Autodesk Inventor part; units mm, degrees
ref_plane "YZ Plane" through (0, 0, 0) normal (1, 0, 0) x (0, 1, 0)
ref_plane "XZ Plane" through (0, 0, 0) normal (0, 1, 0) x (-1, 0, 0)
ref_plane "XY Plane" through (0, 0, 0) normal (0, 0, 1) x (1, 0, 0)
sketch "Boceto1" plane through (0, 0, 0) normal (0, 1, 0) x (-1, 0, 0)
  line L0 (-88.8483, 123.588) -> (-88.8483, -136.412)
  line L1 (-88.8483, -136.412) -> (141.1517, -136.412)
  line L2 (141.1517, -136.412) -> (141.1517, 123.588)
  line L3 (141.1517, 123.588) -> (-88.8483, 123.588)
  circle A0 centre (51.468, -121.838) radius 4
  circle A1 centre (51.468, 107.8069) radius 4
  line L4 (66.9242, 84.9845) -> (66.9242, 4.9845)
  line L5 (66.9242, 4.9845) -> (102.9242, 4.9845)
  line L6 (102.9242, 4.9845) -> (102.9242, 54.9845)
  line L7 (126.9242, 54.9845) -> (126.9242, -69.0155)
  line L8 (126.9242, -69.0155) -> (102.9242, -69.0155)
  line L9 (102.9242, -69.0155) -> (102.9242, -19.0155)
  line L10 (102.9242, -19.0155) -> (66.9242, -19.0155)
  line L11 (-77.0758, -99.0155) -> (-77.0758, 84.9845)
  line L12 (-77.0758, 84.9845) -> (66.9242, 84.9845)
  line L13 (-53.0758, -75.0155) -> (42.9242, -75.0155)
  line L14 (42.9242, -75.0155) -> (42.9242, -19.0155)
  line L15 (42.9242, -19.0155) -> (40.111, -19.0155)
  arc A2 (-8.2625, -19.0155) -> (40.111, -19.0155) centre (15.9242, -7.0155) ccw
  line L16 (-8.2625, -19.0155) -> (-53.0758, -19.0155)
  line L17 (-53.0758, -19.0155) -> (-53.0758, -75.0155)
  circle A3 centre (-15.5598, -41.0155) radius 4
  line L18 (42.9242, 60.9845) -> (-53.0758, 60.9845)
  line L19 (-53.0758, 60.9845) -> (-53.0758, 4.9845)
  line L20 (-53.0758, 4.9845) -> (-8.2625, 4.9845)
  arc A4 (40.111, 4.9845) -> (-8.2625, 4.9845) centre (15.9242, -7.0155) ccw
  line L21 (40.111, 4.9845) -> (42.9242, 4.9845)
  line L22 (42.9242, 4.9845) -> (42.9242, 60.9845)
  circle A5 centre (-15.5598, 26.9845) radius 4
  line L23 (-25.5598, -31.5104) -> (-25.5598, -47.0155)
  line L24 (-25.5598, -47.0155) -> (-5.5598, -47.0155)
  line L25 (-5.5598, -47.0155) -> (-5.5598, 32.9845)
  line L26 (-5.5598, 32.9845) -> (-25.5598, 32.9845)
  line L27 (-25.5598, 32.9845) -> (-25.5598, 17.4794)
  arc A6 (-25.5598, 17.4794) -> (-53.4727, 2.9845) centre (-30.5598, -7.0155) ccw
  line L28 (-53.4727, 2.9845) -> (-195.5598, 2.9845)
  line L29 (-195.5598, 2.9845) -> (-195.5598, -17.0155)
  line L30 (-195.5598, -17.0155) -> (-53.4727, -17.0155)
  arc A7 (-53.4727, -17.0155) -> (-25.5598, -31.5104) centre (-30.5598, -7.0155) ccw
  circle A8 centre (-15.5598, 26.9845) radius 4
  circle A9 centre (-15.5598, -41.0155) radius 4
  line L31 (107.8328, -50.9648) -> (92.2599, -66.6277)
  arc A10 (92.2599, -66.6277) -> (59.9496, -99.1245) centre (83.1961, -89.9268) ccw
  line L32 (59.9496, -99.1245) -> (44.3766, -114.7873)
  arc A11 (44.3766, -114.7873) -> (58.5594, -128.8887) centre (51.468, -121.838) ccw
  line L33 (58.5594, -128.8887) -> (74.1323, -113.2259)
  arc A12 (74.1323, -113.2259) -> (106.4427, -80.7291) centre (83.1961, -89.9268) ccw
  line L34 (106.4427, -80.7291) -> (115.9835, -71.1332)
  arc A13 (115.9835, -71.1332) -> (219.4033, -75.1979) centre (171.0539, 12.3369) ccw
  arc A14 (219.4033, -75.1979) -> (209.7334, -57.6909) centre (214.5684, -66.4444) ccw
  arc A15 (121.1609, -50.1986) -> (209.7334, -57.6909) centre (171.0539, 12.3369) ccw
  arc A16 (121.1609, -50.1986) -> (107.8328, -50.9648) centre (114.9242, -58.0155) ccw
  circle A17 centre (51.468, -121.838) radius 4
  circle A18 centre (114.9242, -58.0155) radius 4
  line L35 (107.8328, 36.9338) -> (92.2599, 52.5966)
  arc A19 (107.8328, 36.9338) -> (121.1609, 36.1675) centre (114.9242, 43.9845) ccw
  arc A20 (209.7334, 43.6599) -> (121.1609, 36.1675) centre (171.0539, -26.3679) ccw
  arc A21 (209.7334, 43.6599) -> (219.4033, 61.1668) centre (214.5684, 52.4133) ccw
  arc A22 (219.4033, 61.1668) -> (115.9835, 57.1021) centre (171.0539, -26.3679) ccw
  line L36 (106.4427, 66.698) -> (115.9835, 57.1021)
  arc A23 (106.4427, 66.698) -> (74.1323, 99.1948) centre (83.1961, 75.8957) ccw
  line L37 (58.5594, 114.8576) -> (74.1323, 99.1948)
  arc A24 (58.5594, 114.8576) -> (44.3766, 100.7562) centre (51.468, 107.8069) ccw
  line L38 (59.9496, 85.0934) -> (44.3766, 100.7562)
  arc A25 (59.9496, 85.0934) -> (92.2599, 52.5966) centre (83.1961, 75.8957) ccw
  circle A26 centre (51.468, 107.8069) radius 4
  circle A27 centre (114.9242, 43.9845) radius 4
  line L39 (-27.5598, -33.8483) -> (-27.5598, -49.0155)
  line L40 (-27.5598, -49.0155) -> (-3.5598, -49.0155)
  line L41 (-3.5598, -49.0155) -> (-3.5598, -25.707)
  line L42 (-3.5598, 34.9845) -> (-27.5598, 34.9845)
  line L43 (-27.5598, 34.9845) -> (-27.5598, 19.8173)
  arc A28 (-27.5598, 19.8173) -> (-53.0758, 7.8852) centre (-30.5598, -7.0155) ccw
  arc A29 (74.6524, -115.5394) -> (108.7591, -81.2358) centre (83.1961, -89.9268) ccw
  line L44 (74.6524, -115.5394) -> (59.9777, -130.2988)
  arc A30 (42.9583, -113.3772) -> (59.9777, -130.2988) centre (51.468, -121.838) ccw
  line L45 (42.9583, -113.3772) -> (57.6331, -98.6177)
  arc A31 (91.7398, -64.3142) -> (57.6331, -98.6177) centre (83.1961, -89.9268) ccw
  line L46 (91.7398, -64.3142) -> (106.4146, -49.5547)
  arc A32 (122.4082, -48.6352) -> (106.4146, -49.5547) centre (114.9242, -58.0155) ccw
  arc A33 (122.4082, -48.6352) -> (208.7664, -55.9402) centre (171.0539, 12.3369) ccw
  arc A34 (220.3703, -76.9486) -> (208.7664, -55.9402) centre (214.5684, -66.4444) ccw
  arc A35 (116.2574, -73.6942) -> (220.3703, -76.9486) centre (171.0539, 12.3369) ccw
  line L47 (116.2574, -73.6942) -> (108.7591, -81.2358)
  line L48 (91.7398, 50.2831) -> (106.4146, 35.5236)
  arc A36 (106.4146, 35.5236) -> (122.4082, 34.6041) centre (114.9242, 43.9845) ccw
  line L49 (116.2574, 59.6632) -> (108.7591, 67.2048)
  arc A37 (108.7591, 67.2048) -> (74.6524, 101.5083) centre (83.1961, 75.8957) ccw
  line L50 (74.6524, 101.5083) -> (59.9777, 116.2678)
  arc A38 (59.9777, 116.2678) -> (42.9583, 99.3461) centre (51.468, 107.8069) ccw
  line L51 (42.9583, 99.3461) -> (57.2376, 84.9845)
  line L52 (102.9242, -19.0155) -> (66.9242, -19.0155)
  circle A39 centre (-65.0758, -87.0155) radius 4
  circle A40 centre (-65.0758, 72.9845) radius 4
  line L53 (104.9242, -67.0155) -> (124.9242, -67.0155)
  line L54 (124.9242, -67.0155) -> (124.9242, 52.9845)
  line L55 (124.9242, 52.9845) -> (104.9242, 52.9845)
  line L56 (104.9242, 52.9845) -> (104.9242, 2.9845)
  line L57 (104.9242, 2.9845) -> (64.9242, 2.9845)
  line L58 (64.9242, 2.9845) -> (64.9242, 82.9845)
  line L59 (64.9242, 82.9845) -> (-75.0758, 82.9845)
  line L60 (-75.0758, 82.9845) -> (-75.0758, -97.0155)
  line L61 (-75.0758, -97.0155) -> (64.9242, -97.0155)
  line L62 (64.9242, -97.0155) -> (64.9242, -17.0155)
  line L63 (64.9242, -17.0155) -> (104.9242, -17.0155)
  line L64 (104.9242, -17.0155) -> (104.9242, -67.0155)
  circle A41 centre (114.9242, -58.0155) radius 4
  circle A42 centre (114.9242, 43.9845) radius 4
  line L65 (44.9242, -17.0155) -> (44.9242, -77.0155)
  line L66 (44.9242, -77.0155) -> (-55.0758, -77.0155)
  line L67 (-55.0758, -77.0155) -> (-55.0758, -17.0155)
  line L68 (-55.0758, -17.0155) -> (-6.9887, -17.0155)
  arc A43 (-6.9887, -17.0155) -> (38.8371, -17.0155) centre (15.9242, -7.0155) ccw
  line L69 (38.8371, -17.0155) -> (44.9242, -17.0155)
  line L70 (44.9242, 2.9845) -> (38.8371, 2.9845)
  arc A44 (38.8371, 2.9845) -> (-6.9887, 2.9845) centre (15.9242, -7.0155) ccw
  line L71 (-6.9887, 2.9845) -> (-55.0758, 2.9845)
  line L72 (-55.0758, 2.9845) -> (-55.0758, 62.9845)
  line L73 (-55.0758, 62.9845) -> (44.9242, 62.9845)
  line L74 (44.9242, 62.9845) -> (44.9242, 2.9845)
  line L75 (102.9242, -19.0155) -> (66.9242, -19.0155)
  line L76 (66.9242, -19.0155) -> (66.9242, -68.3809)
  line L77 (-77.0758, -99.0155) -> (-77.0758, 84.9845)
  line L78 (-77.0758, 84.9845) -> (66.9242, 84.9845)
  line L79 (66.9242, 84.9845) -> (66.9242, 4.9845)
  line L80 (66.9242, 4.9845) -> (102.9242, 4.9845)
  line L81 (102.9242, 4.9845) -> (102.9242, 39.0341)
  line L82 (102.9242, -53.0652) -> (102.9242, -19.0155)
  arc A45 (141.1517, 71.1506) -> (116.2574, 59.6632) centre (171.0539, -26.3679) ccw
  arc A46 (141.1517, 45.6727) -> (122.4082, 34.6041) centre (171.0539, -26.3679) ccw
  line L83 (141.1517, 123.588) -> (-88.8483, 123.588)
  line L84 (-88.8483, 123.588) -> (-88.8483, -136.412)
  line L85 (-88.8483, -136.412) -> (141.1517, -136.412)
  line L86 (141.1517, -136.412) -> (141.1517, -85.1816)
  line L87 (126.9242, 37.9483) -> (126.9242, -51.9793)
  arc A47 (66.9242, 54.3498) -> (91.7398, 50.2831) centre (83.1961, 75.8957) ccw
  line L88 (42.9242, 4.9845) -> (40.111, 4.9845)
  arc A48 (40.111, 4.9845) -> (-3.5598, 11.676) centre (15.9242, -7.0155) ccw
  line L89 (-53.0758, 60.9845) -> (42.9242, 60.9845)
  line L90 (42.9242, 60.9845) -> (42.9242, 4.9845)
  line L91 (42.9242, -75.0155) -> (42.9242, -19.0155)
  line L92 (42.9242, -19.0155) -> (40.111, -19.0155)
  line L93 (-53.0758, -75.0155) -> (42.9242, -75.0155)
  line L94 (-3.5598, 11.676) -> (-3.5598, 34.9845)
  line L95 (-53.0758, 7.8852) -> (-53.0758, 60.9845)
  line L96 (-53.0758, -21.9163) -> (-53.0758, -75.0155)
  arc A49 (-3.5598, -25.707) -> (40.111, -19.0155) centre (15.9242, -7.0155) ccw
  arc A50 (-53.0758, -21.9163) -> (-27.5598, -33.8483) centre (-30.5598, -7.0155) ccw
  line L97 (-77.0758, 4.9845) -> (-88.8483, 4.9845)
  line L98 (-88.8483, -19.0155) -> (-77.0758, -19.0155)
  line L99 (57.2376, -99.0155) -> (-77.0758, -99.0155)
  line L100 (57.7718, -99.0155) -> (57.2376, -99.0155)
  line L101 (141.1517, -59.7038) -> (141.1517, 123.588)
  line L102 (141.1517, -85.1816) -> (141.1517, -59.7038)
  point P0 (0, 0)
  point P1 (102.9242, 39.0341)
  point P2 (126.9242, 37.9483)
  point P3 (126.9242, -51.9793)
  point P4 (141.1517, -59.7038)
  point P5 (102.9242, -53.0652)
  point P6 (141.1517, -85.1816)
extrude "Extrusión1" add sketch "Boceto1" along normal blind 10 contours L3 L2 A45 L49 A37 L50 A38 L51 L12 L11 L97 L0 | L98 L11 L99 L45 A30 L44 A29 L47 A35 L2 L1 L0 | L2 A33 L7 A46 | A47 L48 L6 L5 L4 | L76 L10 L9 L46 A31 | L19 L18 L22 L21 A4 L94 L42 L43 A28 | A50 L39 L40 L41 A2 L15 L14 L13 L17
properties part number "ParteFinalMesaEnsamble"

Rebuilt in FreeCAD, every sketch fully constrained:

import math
import FreeCAD as App
import Part
import Sketcher

V = App.Vector
Q = App.Units.Quantity

doc = App.newDocument("Part")
body = doc.addObject("PartDesign::Body", "Body")
body.AllowCompound = True

# Sketch on XZ plane
sketch1 = doc.addObject("Sketcher::SketchObject", "Sketch")
body.addObject(sketch1)
sketch1.AttachmentSupport = (doc.XZ_Plane, [""])
sketch1.MapMode = "FlatFace"
sketch1.addGeometry(Part.LineSegment(V(-141.2, 123.6, 0), V(88.8, 123.6, 0)), False)
sketch1.addGeometry(Part.LineSegment(V(88.8, 123.6, 0), V(88.8, 5, 0)), False)
sketch1.addGeometry(Part.LineSegment(V(88.8, 5, 0), V(77.1, 5, 0)), False)
sketch1.addGeometry(Part.LineSegment(V(77.1, 5, 0), V(77.1, 85, 0)), False)
sketch1.addGeometry(Part.LineSegment(V(77.1, 85, 0), V(-57.2, 85, 0)), False)
sketch1.addGeometry(Part.LineSegment(V(-57.2, 85, 0), V(-43, 99.3, 0)), False)
sketch1.addGeometry(Part.ArcOfCircle(Part.Circle(V(-51.5, 107.8, 0), V(0, 0, 1), 12), math.radians(-45), math.radians(135)), False)
sketch1.addGeometry(Part.LineSegment(V(-60, 116.3, 0), V(-74.7, 101.5, 0)), False)
sketch1.addGeometry(Part.ArcOfCircle(Part.Circle(V(-83.2, 75.9, 0), V(0, 0, 1), 27), math.radians(72), math.radians(199)), False)
sketch1.addGeometry(Part.LineSegment(V(-108.8, 67.2, 0), V(-116.3, 59.7, 0)), False)
sketch1.addGeometry(Part.ArcOfCircle(Part.Circle(V(-171.1, -26.4, 0), V(0, 0, 1), 102), math.radians(57.51), math.radians(72.95)), False)
sketch1.addGeometry(Part.LineSegment(V(-141.2, 71.2, 0), V(-141.2, 123.6, 0)), False)
sketch1.addGeometry(Part.LineSegment(V(77.1, -19, 0), V(88.8, -19, 0)), False)
sketch1.addGeometry(Part.LineSegment(V(88.8, -19, 0), V(88.8, -136.4, 0)), False)
sketch1.addGeometry(Part.LineSegment(V(88.8, -136.4, 0), V(-141.2, -136.4, 0)), False)
sketch1.addGeometry(Part.LineSegment(V(-141.2, -136.4, 0), V(-141.2, -85.2, 0)), False)
sketch1.addGeometry(Part.ArcOfCircle(Part.Circle(V(-171.1, 12.3, 0), V(0, 0, 1), 102), math.radians(-72.95), math.radians(-57.51)), False)
sketch1.addGeometry(Part.LineSegment(V(-116.3, -73.7, 0), V(-108.8, -81.2, 0)), False)
sketch1.addGeometry(Part.ArcOfCircle(Part.Circle(V(-83.2, -89.9, 0), V(0, 0, 1), 27), math.radians(161), math.radians(288)), False)
sketch1.addGeometry(Part.LineSegment(V(-74.7, -115.5, 0), V(-60, -130.3, 0)), False)
sketch1.addGeometry(Part.ArcOfCircle(Part.Circle(V(-51.5, -121.8, 0), V(0, 0, 1), 12), math.radians(-135), math.radians(45)), False)
sketch1.addGeometry(Part.LineSegment(V(-43, -113.4, 0), V(-57.2, -99, 0)), False)
sketch1.addGeometry(Part.LineSegment(V(-57.2, -99, 0), V(77.1, -99, 0)), False)
sketch1.addGeometry(Part.LineSegment(V(77.1, -99, 0), V(77.1, -19, 0)), False)
sketch1.addGeometry(Part.LineSegment(V(-141.2, -59.7, 0), V(-141.2, 45.7, 0)), False)
sketch1.addGeometry(Part.ArcOfCircle(Part.Circle(V(-171.1, -26.4, 0), V(0, 0, 1), 78), math.radians(55.54), math.radians(67.46)), False)
sketch1.addGeometry(Part.LineSegment(V(-126.9, 37.9, 0), V(-126.9, -52, 0)), False)
sketch1.addGeometry(Part.ArcOfCircle(Part.Circle(V(-171.1, 12.3, 0), V(0, 0, 1), 78), math.radians(-67.46), math.radians(-55.54)), False)
sketch1.addGeometry(Part.ArcOfCircle(Part.Circle(V(-83.2, 75.9, 0), V(0, 0, 1), 27), math.radians(-108), math.radians(-53)), False)
sketch1.addGeometry(Part.LineSegment(V(-66.9, 54.3, 0), V(-66.9, 5, 0)), False)
sketch1.addGeometry(Part.LineSegment(V(-66.9, 5, 0), V(-102.9, 5, 0)), False)
sketch1.addGeometry(Part.LineSegment(V(-102.9, 5, 0), V(-102.9, 39, 0)), False)
sketch1.addGeometry(Part.LineSegment(V(-102.9, 39, 0), V(-91.7, 50.3, 0)), False)
sketch1.addGeometry(Part.LineSegment(V(-66.9, -19, 0), V(-66.9, -68.4, 0)), False)
sketch1.addGeometry(Part.ArcOfCircle(Part.Circle(V(-83.2, -89.9, 0), V(0, 0, 1), 27), math.radians(53), math.radians(108)), False)
sketch1.addGeometry(Part.LineSegment(V(-91.7, -64.3, 0), V(-102.9, -53.1, 0)), False)
sketch1.addGeometry(Part.LineSegment(V(-102.9, -53.1, 0), V(-102.9, -19, 0)), False)
sketch1.addGeometry(Part.LineSegment(V(-102.9, -19, 0), V(-66.9, -19, 0)), False)
sketch1.addGeometry(Part.LineSegment(V(53.1, 61, 0), V(53.1, 7.9, 0)), False)
sketch1.addGeometry(Part.ArcOfCircle(Part.Circle(V(30.6, -7, 0), V(0, 0, 1), 27), math.radians(33), math.radians(96)), False)
sketch1.addGeometry(Part.LineSegment(V(27.6, 19.8, 0), V(27.6, 35, 0)), False)
sketch1.addGeometry(Part.LineSegment(V(27.6, 35, 0), V(3.6, 35, 0)), False)
sketch1.addGeometry(Part.LineSegment(V(3.6, 35, 0), V(3.6, 11.7, 0)), False)
sketch1.addGeometry(Part.ArcOfCircle(Part.Circle(V(-15.9, -7, 0), V(0, 0, 1), 27), math.radians(44), math.radians(154)), False)
sketch1.addGeometry(Part.LineSegment(V(-40.1, 5, 0), V(-42.9, 5, 0)), False)
sketch1.addGeometry(Part.LineSegment(V(-42.9, 5, 0), V(-42.9, 61, 0)), False)
sketch1.addGeometry(Part.LineSegment(V(-42.9, 61, 0), V(53.1, 61, 0)), False)
sketch1.addGeometry(Part.ArcOfCircle(Part.Circle(V(30.6, -7, 0), V(0, 0, 1), 27), math.radians(-96), math.radians(-33)), False)
sketch1.addGeometry(Part.LineSegment(V(53.1, -21.9, 0), V(53.1, -75, 0)), False)
sketch1.addGeometry(Part.LineSegment(V(53.1, -75, 0), V(-42.9, -75, 0)), False)
sketch1.addGeometry(Part.LineSegment(V(-42.9, -75, 0), V(-42.9, -19, 0)), False)
sketch1.addGeometry(Part.LineSegment(V(-42.9, -19, 0), V(-40.1, -19, 0)), False)
sketch1.addGeometry(Part.ArcOfCircle(Part.Circle(V(-15.9, -7, 0), V(0, 0, 1), 27), math.radians(-154), math.radians(-44)), False)
sketch1.addGeometry(Part.LineSegment(V(3.6, -25.7, 0), V(3.6, -49, 0)), False)
sketch1.addGeometry(Part.LineSegment(V(3.6, -49, 0), V(27.6, -49, 0)), False)
sketch1.addGeometry(Part.LineSegment(V(27.6, -49, 0), V(27.6, -33.8, 0)), False)
sketch1.addConstraint(Sketcher.Constraint("Coincident", 0, 2, 1, 1))
sketch1.addConstraint(Sketcher.Constraint("Coincident", 1, 2, 2, 1))
sketch1.addConstraint(Sketcher.Constraint("Coincident", 2, 2, 3, 1))
sketch1.addConstraint(Sketcher.Constraint("Coincident", 3, 2, 4, 1))
sketch1.addConstraint(Sketcher.Constraint("Coincident", 4, 2, 5, 1))
sketch1.addConstraint(Sketcher.Constraint("Tangent", 5, 2, 6, 1))
sketch1.addConstraint(Sketcher.Constraint("Tangent", 6, 2, 7, 1))
sketch1.addConstraint(Sketcher.Constraint("Coincident", 7, 2, 8, 1))
sketch1.addConstraint(Sketcher.Constraint("Coincident", 8, 2, 9, 1))
sketch1.addConstraint(Sketcher.Constraint("Coincident", 9, 2, 10, 1))
sketch1.addConstraint(Sketcher.Constraint("Coincident", 10, 2, 11, 1))
sketch1.addConstraint(Sketcher.Constraint("Coincident", 11, 2, 0, 1))
sketch1.addConstraint(Sketcher.Constraint("Coincident", 12, 2, 13, 1))
sketch1.addConstraint(Sketcher.Constraint("Coincident", 13, 2, 14, 1))
sketch1.addConstraint(Sketcher.Constraint("Coincident", 14, 2, 15, 1))
sketch1.addConstraint(Sketcher.Constraint("Coincident", 15, 2, 16, 1))
sketch1.addConstraint(Sketcher.Constraint("Coincident", 16, 2, 17, 1))
sketch1.addConstraint(Sketcher.Constraint("Coincident", 17, 2, 18, 1))
sketch1.addConstraint(Sketcher.Constraint("Coincident", 18, 2, 19, 1))
sketch1.addConstraint(Sketcher.Constraint("Tangent", 19, 2, 20, 1))
sketch1.addConstraint(Sketcher.Constraint("Tangent", 20, 2, 21, 1))
sketch1.addConstraint(Sketcher.Constraint("Coincident", 21, 2, 22, 1))
sketch1.addConstraint(Sketcher.Constraint("Coincident", 22, 2, 23, 1))
sketch1.addConstraint(Sketcher.Constraint("Coincident", 23, 2, 12, 1))
sketch1.addConstraint(Sketcher.Constraint("Coincident", 24, 2, 25, 2))
sketch1.addConstraint(Sketcher.Constraint("Coincident", 25, 1, 26, 1))
sketch1.addConstraint(Sketcher.Constraint("Coincident", 26, 2, 27, 2))
sketch1.addConstraint(Sketcher.Constraint("Coincident", 27, 1, 24, 1))
sketch1.addConstraint(Sketcher.Constraint("Coincident", 28, 2, 29, 1))
sketch1.addConstraint(Sketcher.Constraint("Coincident", 29, 2, 30, 1))
sketch1.addConstraint(Sketcher.Constraint("Coincident", 30, 2, 31, 1))
sketch1.addConstraint(Sketcher.Constraint("Coincident", 31, 2, 32, 1))
sketch1.addConstraint(Sketcher.Constraint("Coincident", 32, 2, 28, 1))
sketch1.addConstraint(Sketcher.Constraint("Coincident", 33, 2, 34, 1))
sketch1.addConstraint(Sketcher.Constraint("Coincident", 34, 2, 35, 1))
sketch1.addConstraint(Sketcher.Constraint("Coincident", 35, 2, 36, 1))
sketch1.addConstraint(Sketcher.Constraint("Coincident", 36, 2, 37, 1))
sketch1.addConstraint(Sketcher.Constraint("Coincident", 37, 2, 33, 1))
sketch1.addConstraint(Sketcher.Constraint("Coincident", 38, 2, 39, 1))
sketch1.addConstraint(Sketcher.Constraint("Coincident", 39, 2, 40, 1))
sketch1.addConstraint(Sketcher.Constraint("Coincident", 40, 2, 41, 1))
sketch1.addConstraint(Sketcher.Constraint("Coincident", 41, 2, 42, 1))
sketch1.addConstraint(Sketcher.Constraint("Coincident", 42, 2, 43, 1))
sketch1.addConstraint(Sketcher.Constraint("Coincident", 43, 2, 44, 1))
sketch1.addConstraint(Sketcher.Constraint("Coincident", 44, 2, 45, 1))
sketch1.addConstraint(Sketcher.Constraint("Coincident", 45, 2, 46, 1))
sketch1.addConstraint(Sketcher.Constraint("Coincident", 46, 2, 38, 1))
sketch1.addConstraint(Sketcher.Constraint("Coincident", 47, 2, 48, 1))
sketch1.addConstraint(Sketcher.Constraint("Coincident", 48, 2, 49, 1))
sketch1.addConstraint(Sketcher.Constraint("Coincident", 49, 2, 50, 1))
sketch1.addConstraint(Sketcher.Constraint("Coincident", 50, 2, 51, 1))
sketch1.addConstraint(Sketcher.Constraint("Coincident", 51, 2, 52, 1))
sketch1.addConstraint(Sketcher.Constraint("Coincident", 52, 2, 53, 1))
sketch1.addConstraint(Sketcher.Constraint("Coincident", 53, 2, 54, 1))
sketch1.addConstraint(Sketcher.Constraint("Coincident", 54, 2, 55, 1))
sketch1.addConstraint(Sketcher.Constraint("Coincident", 55, 2, 47, 1))
sketch1.addConstraint(Sketcher.Constraint("Horizontal", 0))
sketch1.addConstraint(Sketcher.Constraint("Vertical", 1))
sketch1.addConstraint(Sketcher.Constraint("Horizontal", 2))
sketch1.addConstraint(Sketcher.Constraint("Vertical", 3))
sketch1.addConstraint(Sketcher.Constraint("Horizontal", 4))
sketch1.addConstraint(Sketcher.Constraint("Vertical", 11))
sketch1.addConstraint(Sketcher.Constraint("Horizontal", 12))
sketch1.addConstraint(Sketcher.Constraint("Vertical", 13))
sketch1.addConstraint(Sketcher.Constraint("Horizontal", 14))
sketch1.addConstraint(Sketcher.Constraint("Vertical", 15))
sketch1.addConstraint(Sketcher.Constraint("Horizontal", 22))
sketch1.addConstraint(Sketcher.Constraint("Vertical", 23))
sketch1.addConstraint(Sketcher.Constraint("Vertical", 24))
sketch1.addConstraint(Sketcher.Constraint("Vertical", 26))
sketch1.addConstraint(Sketcher.Constraint("Vertical", 29))
sketch1.addConstraint(Sketcher.Constraint("Horizontal", 30))
sketch1.addConstraint(Sketcher.Constraint("Vertical", 31))
sketch1.addConstraint(Sketcher.Constraint("Vertical", 33))
sketch1.addConstraint(Sketcher.Constraint("Vertical", 36))
sketch1.addConstraint(Sketcher.Constraint("Horizontal", 37))
sketch1.addConstraint(Sketcher.Constraint("Vertical", 38))
sketch1.addConstraint(Sketcher.Constraint("Vertical", 40))
sketch1.addConstraint(Sketcher.Constraint("Horizontal", 41))
sketch1.addConstraint(Sketcher.Constraint("Vertical", 42))
sketch1.addConstraint(Sketcher.Constraint("Horizontal", 44))
sketch1.addConstraint(Sketcher.Constraint("Vertical", 45))
sketch1.addConstraint(Sketcher.Constraint("Horizontal", 46))
sketch1.addConstraint(Sketcher.Constraint("Vertical", 48))
sketch1.addConstraint(Sketcher.Constraint("Horizontal", 49))
sketch1.addConstraint(Sketcher.Constraint("Vertical", 50))
sketch1.addConstraint(Sketcher.Constraint("Horizontal", 51))
sketch1.addConstraint(Sketcher.Constraint("Vertical", 53))
sketch1.addConstraint(Sketcher.Constraint("Horizontal", 54))
sketch1.addConstraint(Sketcher.Constraint("Vertical", 55))
sketch1.addConstraint(Sketcher.Constraint("Coincident", 27, 3, 16, 3))
sketch1.addConstraint(Sketcher.Constraint("Coincident", 28, 3, 8, 3))
sketch1.addConstraint(Sketcher.Constraint("Coincident", 34, 3, 18, 3))
sketch1.addConstraint(Sketcher.Constraint("Coincident", 47, 3, 39, 3))
sketch1.addConstraint(Sketcher.Constraint("Coincident", 52, 3, 43, 3))
sketch1.addConstraint(Sketcher.Constraint("Equal", 8, 18))
sketch1.addConstraint(Sketcher.Constraint("Equal", 6, 20))
sketch1.addConstraint(Sketcher.Constraint("Equal", 25, 27))
sketch1.addConstraint(Sketcher.Constraint("Equal", 18, 28))
sketch1.addConstraint(Sketcher.Constraint("Equal", 28, 34))
sketch1.addConstraint(Sketcher.Constraint("Equal", 34, 39))
sketch1.addConstraint(Sketcher.Constraint("Equal", 39, 43))
sketch1.addConstraint(Sketcher.Constraint("Equal", 43, 47))
sketch1.addConstraint(Sketcher.Constraint("Equal", 47, 52))
sketch1.addConstraint(Sketcher.Constraint("Parallel", 5, 7))
sketch1.addConstraint(Sketcher.Constraint("Parallel", 7, 9))
sketch1.addConstraint(Sketcher.Constraint("Parallel", 17, 19))
sketch1.addConstraint(Sketcher.Constraint("Parallel", 19, 21))
sketch1.addConstraint(Sketcher.Constraint("Parallel", 9, 32))
sketch1.addConstraint(Sketcher.Constraint("Parallel", 21, 35))
sketch1.addConstraint(Sketcher.Constraint("Horizontal", 39, 3, 43, 3))
sketch1.addConstraint(Sketcher.Constraint("Horizontal", 2, 2, 29, 2))
sketch1.addConstraint(Sketcher.Constraint("Horizontal", 23, 2, 36, 2))
sketch1.addConstraint(Sketcher.Constraint("Horizontal", 30, 2, 43, 2))
sketch1.addConstraint(Sketcher.Constraint("Horizontal", 37, 2, 50, 2))
sketch1.addConstraint(Sketcher.Constraint("Vertical", 8, 3, 18, 3))
sketch1.addConstraint(Sketcher.Constraint("Vertical", 6, 3, 20, 3))
sketch1.addConstraint(Sketcher.Constraint("Vertical", 16, 3, 25, 3))
sketch1.addConstraint(Sketcher.Constraint("Vertical", 1, 2, 12, 2))
sketch1.addConstraint(Sketcher.Constraint("Vertical", 11, 2, 14, 2))
sketch1.addConstraint(Sketcher.Constraint("Vertical", 9, 2, 16, 2))
sketch1.addConstraint(Sketcher.Constraint("Vertical", 8, 2, 17, 2))
sketch1.addConstraint(Sketcher.Constraint("Vertical", 7, 2, 18, 2))
sketch1.addConstraint(Sketcher.Constraint("Vertical", 6, 2, 19, 2))
sketch1.addConstraint(Sketcher.Constraint("Vertical", 4, 2, 21, 2))
sketch1.addConstraint(Sketcher.Constraint("Vertical", 3, 2, 22, 2))
sketch1.addConstraint(Sketcher.Constraint("Vertical", 15, 2, 24, 2))
sketch1.addConstraint(Sketcher.Constraint("Vertical", 29, 2, 33, 2))
sketch1.addConstraint(Sketcher.Constraint("Vertical", 32, 2, 34, 2))
sketch1.addConstraint(Sketcher.Constraint("Vertical", 31, 2, 35, 2))
sketch1.addConstraint(Sketcher.Constraint("Vertical", 46, 2, 47, 2))
sketch1.addConstraint(Sketcher.Constraint("Vertical", 45, 2, 49, 2))
sketch1.addConstraint(Sketcher.Constraint("Vertical", 43, 2, 51, 2))
sketch1.addConstraint(Sketcher.Constraint("Vertical", 42, 2, 52, 2))
sketch1.addConstraint(Sketcher.Constraint("Vertical", 40, 2, 54, 2))
sketch1.addConstraint(Sketcher.Constraint("Equal", 3, 23))
sketch1.addConstraint(Sketcher.Constraint("Equal", 38, 48))
sketch1.addConstraint(Sketcher.Constraint("Equal", 42, 53))
sketch1.addConstraint(Sketcher.Constraint("Radius", 6, Q("12 mm")))
sketch1.addConstraint(Sketcher.Constraint("Radius", 8, Q("27 mm")))
sketch1.addConstraint(Sketcher.Constraint("Radius", 16, Q("102 mm")))
sketch1.addConstraint(Sketcher.Constraint("Radius", 25, Q("78 mm")))
sketch1.addConstraint(Sketcher.Constraint("DistanceX", 0, 1, 0, 2, Q("230 mm")))
sketch1.addConstraint(Sketcher.Constraint("DistanceX", 30, 2, 30, 1, Q("36 mm")))
sketch1.addConstraint(Sketcher.Constraint("DistanceX", 41, 2, 41, 1, Q("24 mm")))
sketch1.addConstraint(Sketcher.Constraint("DistanceX", 46, 1, 46, 2, Q("96 mm")))
sketch1.addConstraint(Sketcher.Constraint("DistanceY", 3, 1, 3, 2, Q("80 mm")))
sketch1.addConstraint(Sketcher.Constraint("DistanceY", 45, 1, 45, 2, Q("56 mm")))
sketch1.addConstraint(Sketcher.Constraint("Radius", 10, Q("102.002 mm")))
sketch1.addConstraint(Sketcher.Constraint("DistanceX", 2, 2, 2, 1, Q("11.7725 mm")))
sketch1.addConstraint(Sketcher.Constraint("DistanceX", 4, 2, 4, 1, Q("134.3134 mm")))
sketch1.addConstraint(Sketcher.Constraint("DistanceX", 44, 2, 44, 1, Q("2.8132 mm")))
sketch1.addConstraint(Sketcher.Constraint("DistanceY", 1, 2, 1, 1, Q("118.6035 mm")))
sketch1.addConstraint(Sketcher.Constraint("DistanceY", 11, 1, 11, 2, Q("52.4374 mm")))
sketch1.addConstraint(Sketcher.Constraint("DistanceY", 13, 2, 13, 1, Q("117.3965 mm")))
sketch1.addConstraint(Sketcher.Constraint("DistanceY", 15, 1, 15, 2, Q("51.2304 mm")))
sketch1.addConstraint(Sketcher.Constraint("DistanceY", 24, 1, 24, 2, Q("105.3765 mm")))
sketch1.addConstraint(Sketcher.Constraint("DistanceY", 26, 2, 26, 1, Q("89.9276 mm")))
sketch1.addConstraint(Sketcher.Constraint("DistanceY", 29, 2, 29, 1, Q("49.3653 mm")))
sketch1.addConstraint(Sketcher.Constraint("DistanceY", 31, 1, 31, 2, Q("34.0496 mm")))
sketch1.addConstraint(Sketcher.Constraint("DistanceY", 38, 2, 38, 1, Q("53.0993 mm")))
sketch1.addConstraint(Sketcher.Constraint("DistanceY", 40, 1, 40, 2, Q("15.1672 mm")))
sketch1.addConstraint(Sketcher.Constraint("DistanceY", 42, 2, 42, 1, Q("23.3085 mm")))
sketch1.addConstraint(Sketcher.Constraint("DistanceX", 6, 3, -1, 1, Q("51.468 mm")))
sketch1.addConstraint(Sketcher.Constraint("DistanceY", -1, 1, 6, 3, Q("107.807 mm")))
sketch1.addConstraint(Sketcher.Constraint("DistanceX", 8, 3, -1, 1, Q("83.196 mm")))
sketch1.addConstraint(Sketcher.Constraint("DistanceX", 16, 3, -1, 1, Q("171.054 mm")))
sketch1.addConstraint(Sketcher.Constraint("DistanceY", -1, 1, 16, 3, Q("12.337 mm")))
sketch1.addConstraint(Sketcher.Constraint("DistanceY", 20, 3, -1, 1, Q("121.838 mm")))
sketch1.addConstraint(Sketcher.Constraint("DistanceY", 25, 3, -1, 1, Q("26.368 mm")))
sketch1.addConstraint(Sketcher.Constraint("DistanceX", 17, 2, -1, 1, Q("108.759 mm")))
sketch1.addConstraint(Sketcher.Constraint("DistanceY", -1, 1, 32, 2, Q("50.283 mm")))
sketch1.addConstraint(Sketcher.Constraint("DistanceX", 43, 2, -1, 1, Q("40.111 mm")))
pad1 = doc.addObject("PartDesign::Pad", "Pad")
body.addObject(pad1)
pad1.Profile = sketch1
pad1.Length = 10
pad1.Reversed = True

doc.recompute()
